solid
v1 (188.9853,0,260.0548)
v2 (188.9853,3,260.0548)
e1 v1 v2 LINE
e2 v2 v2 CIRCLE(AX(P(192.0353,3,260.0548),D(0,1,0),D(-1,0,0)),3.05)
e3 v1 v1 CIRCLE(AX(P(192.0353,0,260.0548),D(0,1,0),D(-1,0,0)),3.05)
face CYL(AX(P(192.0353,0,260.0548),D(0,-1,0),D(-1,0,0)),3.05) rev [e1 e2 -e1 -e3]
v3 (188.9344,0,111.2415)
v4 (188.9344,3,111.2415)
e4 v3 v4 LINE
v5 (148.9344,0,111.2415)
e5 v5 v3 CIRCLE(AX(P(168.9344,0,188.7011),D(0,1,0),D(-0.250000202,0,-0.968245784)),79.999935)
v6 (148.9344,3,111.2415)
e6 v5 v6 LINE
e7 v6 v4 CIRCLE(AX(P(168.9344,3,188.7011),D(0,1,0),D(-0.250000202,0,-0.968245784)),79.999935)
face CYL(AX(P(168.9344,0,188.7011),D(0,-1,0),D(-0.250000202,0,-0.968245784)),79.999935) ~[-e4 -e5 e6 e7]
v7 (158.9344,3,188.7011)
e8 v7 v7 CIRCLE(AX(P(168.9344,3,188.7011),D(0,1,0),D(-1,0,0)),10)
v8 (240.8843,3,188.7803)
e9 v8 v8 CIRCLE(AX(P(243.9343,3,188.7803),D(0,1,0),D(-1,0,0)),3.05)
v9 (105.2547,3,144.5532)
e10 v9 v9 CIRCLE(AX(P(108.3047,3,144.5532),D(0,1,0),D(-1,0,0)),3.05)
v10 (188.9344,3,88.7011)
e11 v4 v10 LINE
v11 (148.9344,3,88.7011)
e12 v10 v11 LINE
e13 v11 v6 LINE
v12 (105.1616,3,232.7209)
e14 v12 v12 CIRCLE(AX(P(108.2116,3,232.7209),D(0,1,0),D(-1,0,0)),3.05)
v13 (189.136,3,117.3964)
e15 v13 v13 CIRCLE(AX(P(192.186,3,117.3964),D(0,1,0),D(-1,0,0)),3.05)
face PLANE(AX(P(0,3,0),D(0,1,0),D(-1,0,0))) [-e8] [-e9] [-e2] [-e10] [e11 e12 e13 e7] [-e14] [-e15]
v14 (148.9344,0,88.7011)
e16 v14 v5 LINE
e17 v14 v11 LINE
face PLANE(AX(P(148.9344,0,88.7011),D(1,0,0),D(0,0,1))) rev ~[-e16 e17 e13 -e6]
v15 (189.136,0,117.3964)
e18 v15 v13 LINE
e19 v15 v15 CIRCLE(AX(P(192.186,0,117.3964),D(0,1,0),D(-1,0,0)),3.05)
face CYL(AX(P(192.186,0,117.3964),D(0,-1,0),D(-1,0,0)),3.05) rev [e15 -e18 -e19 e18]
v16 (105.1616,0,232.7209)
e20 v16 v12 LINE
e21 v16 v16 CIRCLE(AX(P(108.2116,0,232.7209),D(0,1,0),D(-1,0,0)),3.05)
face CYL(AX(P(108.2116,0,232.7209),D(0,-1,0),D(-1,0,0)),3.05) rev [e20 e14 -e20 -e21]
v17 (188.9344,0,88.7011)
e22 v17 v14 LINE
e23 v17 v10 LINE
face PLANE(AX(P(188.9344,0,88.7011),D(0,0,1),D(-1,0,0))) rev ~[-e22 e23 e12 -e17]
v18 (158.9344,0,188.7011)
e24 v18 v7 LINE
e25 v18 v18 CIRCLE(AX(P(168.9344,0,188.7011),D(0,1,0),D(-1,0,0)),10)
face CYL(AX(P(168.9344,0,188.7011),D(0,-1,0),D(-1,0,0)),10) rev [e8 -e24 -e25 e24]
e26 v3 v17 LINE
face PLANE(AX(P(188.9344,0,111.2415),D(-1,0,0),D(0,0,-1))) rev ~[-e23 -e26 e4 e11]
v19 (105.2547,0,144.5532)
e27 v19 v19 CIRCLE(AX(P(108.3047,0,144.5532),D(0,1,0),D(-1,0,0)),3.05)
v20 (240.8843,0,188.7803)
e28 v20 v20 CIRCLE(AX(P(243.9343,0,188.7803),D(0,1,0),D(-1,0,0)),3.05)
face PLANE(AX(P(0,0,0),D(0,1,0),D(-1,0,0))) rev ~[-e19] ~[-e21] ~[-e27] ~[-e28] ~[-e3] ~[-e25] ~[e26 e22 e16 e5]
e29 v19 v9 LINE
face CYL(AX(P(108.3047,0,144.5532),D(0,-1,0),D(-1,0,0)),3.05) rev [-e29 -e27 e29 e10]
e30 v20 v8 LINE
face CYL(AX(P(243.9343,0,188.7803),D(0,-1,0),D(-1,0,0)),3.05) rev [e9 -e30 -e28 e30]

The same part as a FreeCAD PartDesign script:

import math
import FreeCAD as App
import Part
import Sketcher

V = App.Vector
Q = App.Units.Quantity

doc = App.newDocument("Part")
params = doc.addObject("Spreadsheet::Sheet", "Params")
for row, (alias, value) in enumerate([
    ("sketch1_diameter", "20 mm"),
    ("sketch1_radius", "80 mm"),
    ("sketch1_diameter2", "6.1 mm"),
    ("sketch1_width", "40 mm"),
    ("pad1_length", "3 mm"),
], start=1):
    params.set(f"A{row}", alias)
    params.set(f"B{row}", "=" + value)
    params.setAlias(f"B{row}", alias)

body = doc.addObject("PartDesign::Body", "Body")

sketch1 = doc.addObject("Sketcher::SketchObject", "Sketch")
body.addObject(sketch1)
sketch1.AttachmentSupport = (doc.XZ_Plane, [""])
sketch1.MapMode = "FlatFace"
sketch1.addGeometry([
    Part.LineSegment(V(148.9344, 88.7011, 0), V(148.9344, 111.2415, 0)),
    Part.ArcOfCircle(Part.Circle(V(168.9344, 188.7011, 0), V(0, 0, 1), 79.999935), math.radians(-75.522476), math.radians(255.522476)),
    Part.LineSegment(V(188.9344, 111.2415, 0), V(188.9344, 88.7011, 0)),
    Part.LineSegment(V(188.9344, 88.7011, 0), V(148.9344, 88.7011, 0)),
    Part.Circle(V(192.186, 117.3964, 0), V(0, 0, 1), 3.05),
    Part.Circle(V(108.3047, 144.5532, 0), V(0, 0, 1), 3.05),
    Part.Circle(V(243.9343, 188.7803, 0), V(0, 0, 1), 3.05),
    Part.Circle(V(192.0353, 260.0548, 0), V(0, 0, 1), 3.05),
    Part.Circle(V(168.9344, 188.7011, 0), V(0, 0, 1), 10),
    Part.Circle(V(108.2116, 232.7209, 0), V(0, 0, 1), 3.05),
], False)
sketch1.addConstraint([
    Sketcher.Constraint("Coincident", 0, 2, 1, 2),
    Sketcher.Constraint("Coincident", 1, 1, 2, 1),
    Sketcher.Constraint("Coincident", 2, 2, 3, 1),
    Sketcher.Constraint("Coincident", 3, 2, 0, 1),
    Sketcher.Constraint("Vertical", 0),
    Sketcher.Constraint("Vertical", 2),
    Sketcher.Constraint("Horizontal", 3),
    Sketcher.Constraint("Coincident", 8, 3, 1, 3),
    Sketcher.Constraint("Equal", 4, 5),
    Sketcher.Constraint("Equal", 5, 6),
    Sketcher.Constraint("Equal", 6, 7),
    Sketcher.Constraint("Equal", 7, 9),
    Sketcher.Constraint("Horizontal", 0, 2, 1, 1),
    Sketcher.Constraint("Diameter", 8, Q("20 mm")),
    Sketcher.Constraint("Radius", 1, Q("80 mm")),
    Sketcher.Constraint("Diameter", 4, Q("6.1 mm")),
    Sketcher.Constraint("DistanceX", 3, 2, 3, 1, Q("40 mm")),
    Sketcher.Constraint("DistanceY", 2, 2, 1, 3, Q("100 mm")),
    Sketcher.Constraint("DistanceX", 1, 3, 6, 3, Q("75 mm")),
    Sketcher.Constraint("DistanceY", -1, 1, 1, 3, Q("188.701 mm")),
    Sketcher.Constraint("DistanceX", -1, 1, 4, 3, Q("192.186 mm")),
    Sketcher.Constraint("DistanceY", -1, 1, 9, 3, Q("232.721 mm")),
    Sketcher.Constraint("DistanceY", 5, 3, 1, 3, Q("44.148 mm")),
    Sketcher.Constraint("DistanceY", 4, 3, 6, 3, Q("71.384 mm")),
    Sketcher.Constraint("DistanceY", 5, 3, 6, 3, Q("44.227 mm")),
    Sketcher.Constraint("DistanceX", 1, 3, 7, 3, Q("23.101 mm")),
    Sketcher.Constraint("DistanceX", 9, 3, 5, 3, Q("0.093 mm")),
    Sketcher.Constraint("DistanceY", 9, 3, 7, 3, Q("27.334 mm")),
    Sketcher.Constraint("DistanceX", -1, 1, 1, 3, Q("168.9344 mm")),
    Sketcher.Constraint("DistanceX", -1, 1, 5, 3, Q("108.3047 mm")),
])
sketch1.setExpression("Constraints[13]", "Params.sketch1_diameter")
sketch1.setExpression("Constraints[14]", "Params.sketch1_radius")
sketch1.setExpression("Constraints[15]", "Params.sketch1_diameter2")
sketch1.setExpression("Constraints[16]", "Params.sketch1_width")
pad1 = doc.addObject("PartDesign::Pad", "Pad")
body.addObject(pad1)
pad1.Profile = sketch1
pad1.setExpression("Length", "Params.pad1_length")
pad1.Reversed = True

doc.recompute()
